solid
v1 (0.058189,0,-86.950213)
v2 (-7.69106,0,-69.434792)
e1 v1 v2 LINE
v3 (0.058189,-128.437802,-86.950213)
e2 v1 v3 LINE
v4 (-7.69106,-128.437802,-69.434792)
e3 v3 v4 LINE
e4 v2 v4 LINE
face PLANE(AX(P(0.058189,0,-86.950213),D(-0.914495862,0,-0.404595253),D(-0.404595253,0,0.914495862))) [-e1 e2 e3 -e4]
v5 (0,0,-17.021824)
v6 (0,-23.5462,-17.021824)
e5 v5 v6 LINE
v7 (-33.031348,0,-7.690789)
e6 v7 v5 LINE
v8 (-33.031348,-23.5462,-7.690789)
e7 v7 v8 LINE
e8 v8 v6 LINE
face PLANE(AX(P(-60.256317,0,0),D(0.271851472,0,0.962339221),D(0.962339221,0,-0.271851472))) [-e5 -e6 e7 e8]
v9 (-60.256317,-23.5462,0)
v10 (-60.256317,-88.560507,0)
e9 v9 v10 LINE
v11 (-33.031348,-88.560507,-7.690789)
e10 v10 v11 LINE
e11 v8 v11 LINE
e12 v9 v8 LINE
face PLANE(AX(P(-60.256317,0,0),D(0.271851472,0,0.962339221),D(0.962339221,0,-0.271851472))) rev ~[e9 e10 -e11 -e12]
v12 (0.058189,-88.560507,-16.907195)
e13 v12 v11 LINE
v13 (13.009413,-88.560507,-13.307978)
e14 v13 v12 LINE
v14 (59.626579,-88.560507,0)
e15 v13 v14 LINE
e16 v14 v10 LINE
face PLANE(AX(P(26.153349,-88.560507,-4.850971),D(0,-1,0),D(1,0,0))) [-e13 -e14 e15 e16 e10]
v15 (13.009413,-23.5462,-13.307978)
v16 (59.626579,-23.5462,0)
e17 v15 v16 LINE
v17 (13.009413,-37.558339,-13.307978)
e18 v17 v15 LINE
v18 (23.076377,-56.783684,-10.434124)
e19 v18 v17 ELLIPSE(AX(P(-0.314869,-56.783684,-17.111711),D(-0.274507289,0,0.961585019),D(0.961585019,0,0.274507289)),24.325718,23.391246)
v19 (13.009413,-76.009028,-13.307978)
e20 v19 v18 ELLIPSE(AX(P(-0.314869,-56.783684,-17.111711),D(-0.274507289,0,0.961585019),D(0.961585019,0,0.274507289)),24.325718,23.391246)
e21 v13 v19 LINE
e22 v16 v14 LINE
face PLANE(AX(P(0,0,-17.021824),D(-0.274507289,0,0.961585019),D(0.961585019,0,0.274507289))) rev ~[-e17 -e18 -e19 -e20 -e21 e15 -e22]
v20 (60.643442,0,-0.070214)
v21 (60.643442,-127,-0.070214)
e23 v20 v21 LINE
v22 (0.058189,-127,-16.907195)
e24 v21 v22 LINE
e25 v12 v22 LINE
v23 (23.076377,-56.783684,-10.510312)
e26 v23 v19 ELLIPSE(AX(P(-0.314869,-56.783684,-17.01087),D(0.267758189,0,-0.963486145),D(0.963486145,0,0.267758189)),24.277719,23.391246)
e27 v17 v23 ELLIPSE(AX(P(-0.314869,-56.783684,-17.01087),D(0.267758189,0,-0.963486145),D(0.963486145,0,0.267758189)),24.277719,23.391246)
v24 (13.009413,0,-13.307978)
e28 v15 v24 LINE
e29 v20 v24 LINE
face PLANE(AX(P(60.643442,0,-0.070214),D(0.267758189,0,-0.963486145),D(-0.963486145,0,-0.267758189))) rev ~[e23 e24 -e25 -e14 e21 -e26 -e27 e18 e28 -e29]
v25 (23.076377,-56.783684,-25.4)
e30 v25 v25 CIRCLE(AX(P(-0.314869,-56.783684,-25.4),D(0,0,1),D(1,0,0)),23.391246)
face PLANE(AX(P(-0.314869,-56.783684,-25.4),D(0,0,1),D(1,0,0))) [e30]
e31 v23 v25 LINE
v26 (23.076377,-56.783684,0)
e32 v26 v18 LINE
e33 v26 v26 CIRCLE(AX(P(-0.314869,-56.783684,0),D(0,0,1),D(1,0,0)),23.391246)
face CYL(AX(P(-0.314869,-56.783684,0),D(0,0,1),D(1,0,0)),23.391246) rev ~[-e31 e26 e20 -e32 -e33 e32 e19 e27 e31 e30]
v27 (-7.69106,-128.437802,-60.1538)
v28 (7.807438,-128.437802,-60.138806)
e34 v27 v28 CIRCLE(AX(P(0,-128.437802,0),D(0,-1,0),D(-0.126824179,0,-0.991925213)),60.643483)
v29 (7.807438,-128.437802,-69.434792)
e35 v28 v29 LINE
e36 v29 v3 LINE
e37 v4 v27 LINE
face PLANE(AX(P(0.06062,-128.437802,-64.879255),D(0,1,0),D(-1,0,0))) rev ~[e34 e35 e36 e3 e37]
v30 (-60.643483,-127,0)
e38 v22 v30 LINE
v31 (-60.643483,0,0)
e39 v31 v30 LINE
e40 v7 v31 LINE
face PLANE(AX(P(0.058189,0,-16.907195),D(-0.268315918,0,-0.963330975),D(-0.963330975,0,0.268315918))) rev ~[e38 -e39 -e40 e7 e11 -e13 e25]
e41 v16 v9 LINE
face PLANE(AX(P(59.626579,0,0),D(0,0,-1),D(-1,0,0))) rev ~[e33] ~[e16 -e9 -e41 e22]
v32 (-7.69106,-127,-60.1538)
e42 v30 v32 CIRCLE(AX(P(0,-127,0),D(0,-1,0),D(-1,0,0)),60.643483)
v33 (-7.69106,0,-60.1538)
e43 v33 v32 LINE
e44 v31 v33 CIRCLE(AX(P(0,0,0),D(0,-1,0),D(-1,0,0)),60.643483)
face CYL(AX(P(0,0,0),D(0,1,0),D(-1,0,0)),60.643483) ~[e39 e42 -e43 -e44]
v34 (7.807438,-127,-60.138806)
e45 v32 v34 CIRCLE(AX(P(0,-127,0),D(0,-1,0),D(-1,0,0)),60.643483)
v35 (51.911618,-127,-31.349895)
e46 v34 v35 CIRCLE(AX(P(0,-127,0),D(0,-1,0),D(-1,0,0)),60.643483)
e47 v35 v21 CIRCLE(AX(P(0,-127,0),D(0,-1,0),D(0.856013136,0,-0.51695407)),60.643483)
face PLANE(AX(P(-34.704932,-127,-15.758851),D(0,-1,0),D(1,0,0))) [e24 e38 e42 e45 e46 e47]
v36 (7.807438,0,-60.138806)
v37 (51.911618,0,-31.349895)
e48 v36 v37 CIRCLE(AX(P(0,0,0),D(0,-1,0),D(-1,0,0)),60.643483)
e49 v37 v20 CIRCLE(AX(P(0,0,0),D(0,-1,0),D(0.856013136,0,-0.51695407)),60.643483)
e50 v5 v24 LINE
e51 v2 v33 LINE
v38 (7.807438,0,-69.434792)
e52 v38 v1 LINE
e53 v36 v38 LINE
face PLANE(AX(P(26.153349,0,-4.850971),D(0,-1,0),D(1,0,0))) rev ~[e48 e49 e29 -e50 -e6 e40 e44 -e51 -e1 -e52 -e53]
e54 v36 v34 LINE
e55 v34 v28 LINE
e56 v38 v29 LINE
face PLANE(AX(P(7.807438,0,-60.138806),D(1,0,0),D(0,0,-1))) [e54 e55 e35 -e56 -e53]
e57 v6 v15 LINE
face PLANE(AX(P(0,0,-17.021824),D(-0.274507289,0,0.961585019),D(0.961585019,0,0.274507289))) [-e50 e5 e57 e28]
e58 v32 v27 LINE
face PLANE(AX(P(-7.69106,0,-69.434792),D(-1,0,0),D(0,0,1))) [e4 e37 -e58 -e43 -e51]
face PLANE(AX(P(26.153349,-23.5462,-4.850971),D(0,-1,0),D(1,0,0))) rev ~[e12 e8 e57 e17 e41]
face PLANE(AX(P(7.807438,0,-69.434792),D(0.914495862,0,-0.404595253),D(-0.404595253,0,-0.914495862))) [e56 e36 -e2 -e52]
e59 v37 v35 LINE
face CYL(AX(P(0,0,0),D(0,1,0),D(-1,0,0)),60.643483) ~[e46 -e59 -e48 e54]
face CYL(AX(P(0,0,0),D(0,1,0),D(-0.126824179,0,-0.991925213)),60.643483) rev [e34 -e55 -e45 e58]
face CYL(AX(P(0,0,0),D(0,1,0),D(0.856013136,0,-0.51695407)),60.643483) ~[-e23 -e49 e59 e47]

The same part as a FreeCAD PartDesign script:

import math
import FreeCAD as App
import Part
import Sketcher
from FreeCAD import Vector
Q = App.Units.Quantity


def add_polygon(sketch, points):
    """Adds a closed chain of lines whose ends are joined by coincident constraints."""
    first, n = sketch.GeometryCount, len(points)
    for a, b in zip(points, points[1:] + points[:1]):
        sketch.addGeometry(Part.LineSegment(App.Vector(*a, 0), App.Vector(*b, 0)), False)
    for i in range(n):
        sketch.addConstraint(Sketcher.Constraint("Coincident", first + i, 2, first + (i + 1) % n, 1))

doc = App.newDocument("Part")
body = doc.addObject("PartDesign::Body", "Body")

# Sketch on XZ plane
sketch1 = body.newObject("Sketcher::SketchObject", "Sketch")
sketch1.AttachmentSupport = (doc.getObject("XZ_Plane"), [""])
sketch1.MapMode = "FlatFace"
sketch1.addGeometry(Part.LineSegment(Vector(0, -17, 0), Vector(-61, 0, 0)), False)
sketch1.addGeometry(Part.ArcOfCircle(Part.Circle(Vector(0, 0, 0), Vector(0, 0, 1), 61), math.radians(180), math.radians(329)), False)
sketch1.addGeometry(Part.ArcOfCircle(Part.Circle(Vector(0, 0, 0), Vector(0, 0, 1), 61), math.radians(-31), math.radians(0)), False)
sketch1.addGeometry(Part.LineSegment(Vector(61, 0, 0), Vector(0, -17, 0)), False)
sketch1.addConstraint(Sketcher.Constraint("Coincident", 0, 2, 1, 1))
sketch1.addConstraint(Sketcher.Constraint("Tangent", 1, 2, 2, 1))
sketch1.addConstraint(Sketcher.Constraint("Coincident", 2, 2, 3, 1))
sketch1.addConstraint(Sketcher.Constraint("Coincident", 3, 2, 0, 1))
sketch1.addConstraint(Sketcher.Constraint("Coincident", 1, 3, -1, 1))
sketch1.addConstraint(Sketcher.Constraint("Equal", 1, 2))
sketch1.addConstraint(Sketcher.Constraint("PointOnObject", 0, 2, -1))
sketch1.addConstraint(Sketcher.Constraint("Radius", 1, 60.643483))
sketch1.addConstraint(Sketcher.Constraint("DistanceX", 0, 2, 1, 2, 112.555101))
sketch1.addConstraint(Sketcher.Constraint("DistanceY", 1, 2, 3, 2, 14.4427))
sketch1.addConstraint(Sketcher.Constraint("Distance", 0, 63.012271))
sketch1.addConstraint(Sketcher.Constraint("Distance", 3, 62.881292))
pad1 = body.newObject("PartDesign::Pad", "Pad")
pad1.Profile = sketch1
pad1.Length = Q("5 in")

# Sketch on XZ plane
sketch2 = body.newObject("Sketcher::SketchObject", "Sketch001")
sketch2.AttachmentSupport = (doc.getObject("XZ_Plane"), [""])
sketch2.MapMode = "FlatFace"
sketch2.addGeometry(Part.LineSegment(Vector(8, -60, 0), Vector(8, -69, 0)), False)
sketch2.addGeometry(Part.LineSegment(Vector(8, -69, 0), Vector(0, -87, 0)), False)
sketch2.addGeometry(Part.LineSegment(Vector(0, -87, 0), Vector(-8, -69, 0)), False)
sketch2.addGeometry(Part.LineSegment(Vector(-8, -69, 0), Vector(-8, -60, 0)), False)
sketch2.addGeometry(Part.ArcOfCircle(Part.Circle(Vector(0, 0, 0), Vector(0, 0, 1), 61), math.radians(-97.29), math.radians(-82.6)), False)
sketch2.addConstraint(Sketcher.Constraint("Coincident", 0, 2, 1, 1))
sketch2.addConstraint(Sketcher.Constraint("Coincident", 1, 2, 2, 1))
sketch2.addConstraint(Sketcher.Constraint("Coincident", 2, 2, 3, 1))
sketch2.addConstraint(Sketcher.Constraint("Coincident", 3, 2, 4, 1))
sketch2.addConstraint(Sketcher.Constraint("Coincident", 4, 2, 0, 1))
sketch2.addConstraint(Sketcher.Constraint("Vertical", 0))
sketch2.addConstraint(Sketcher.Constraint("Vertical", 3))
sketch2.addConstraint(Sketcher.Constraint("Coincident", 4, 3, -1, 1))
sketch2.addConstraint(Sketcher.Constraint("Horizontal", 0, 2, 2, 2))
sketch2.addConstraint(Sketcher.Constraint("Equal", 1, 2))
sketch2.addConstraint(Sketcher.Constraint("Radius", 4, 60.643483))
sketch2.addConstraint(Sketcher.Constraint("DistanceY", 3, 2, -1, 1, 60.1538))
sketch2.addConstraint(Sketcher.Constraint("DistanceX", 2, 2, 0, 2, 15.498498))
sketch2.addConstraint(Sketcher.Constraint("Distance", 1, 19.153089))
sketch2.addConstraint(Sketcher.Constraint("DistanceY", 0, 2, 0, 1, 9.295986))
pad2 = body.newObject("PartDesign::Pad", "Pad001")
pad2.Profile = sketch2
pad2.Length = 128.437802

# Sketch on XZ plane
sketch3 = body.newObject("Sketcher::SketchObject", "Sketch002")
sketch3.AttachmentSupport = (doc.getObject("XZ_Plane"), [""])
sketch3.MapMode = "FlatFace"
add_polygon(sketch3, [(60, 0), (-60, 0), (0, -17)])  # lines 0-2
sketch3.addConstraint(Sketcher.Constraint("Horizontal", 0))
sketch3.addConstraint(Sketcher.Constraint("PointOnObject", 0, 2, -1))
sketch3.addConstraint(Sketcher.Constraint("PointOnObject", 1, 2, -2))
sketch3.addConstraint(Sketcher.Constraint("Distance", 2, 62.00864))
sketch3.addConstraint(Sketcher.Constraint("DistanceX", 0, 2, 0, 1, 119.882897))
sketch3.addConstraint(Sketcher.Constraint("DistanceX", -1, 1, 2, 2, 59.626579))
pad3 = body.newObject("PartDesign::Pad", "Pad002")
pad3.Profile = sketch3
pad3.Length = 88.560507

# Sketch on XZ plane
sketch4 = body.newObject("Sketcher::SketchObject", "Sketch003")
sketch4.AttachmentSupport = (doc.getObject("XZ_Plane"), [""])
sketch4.MapMode = "FlatFace"
add_polygon(sketch4, [(60, 0), (-60, 0), (0, -17)])  # lines 0-2
sketch4.addConstraint(Sketcher.Constraint("Horizontal", 0))
sketch4.addConstraint(Sketcher.Constraint("PointOnObject", 0, 2, -1))
sketch4.addConstraint(Sketcher.Constraint("PointOnObject", 1, 2, -2))
sketch4.addConstraint(Sketcher.Constraint("Distance", 2, 62.00864))
sketch4.addConstraint(Sketcher.Constraint("DistanceX", 0, 2, 0, 1, 119.882897))
sketch4.addConstraint(Sketcher.Constraint("DistanceX", -1, 1, 2, 2, 59.626579))
pocket1 = body.newObject("PartDesign::Pocket", "Pocket")
pocket1.Profile = sketch4
pocket1.Length = 23.5462
pocket1.Reversed = True

# Sketch on XY plane
sketch5 = body.newObject("Sketcher::SketchObject", "Sketch004")
sketch5.AttachmentSupport = (doc.getObject("XY_Plane"), [""])
sketch5.MapMode = "FlatFace"
sketch5.addGeometry(Part.Circle(Vector(0, -57, 0), Vector(0, 0, 1), 23), False)
sketch5.addConstraint(Sketcher.Constraint("Diameter", 0, 46.782492))
sketch5.addConstraint(Sketcher.Constraint("DistanceX", 0, 3, -1, 1, 0.314869))
sketch5.addConstraint(Sketcher.Constraint("DistanceY", 0, 3, -1, 1, 56.783684))
pocket2 = body.newObject("PartDesign::Pocket", "Pocket001")
pocket2.Profile = sketch5
pocket2.Length = Q("1 in")

doc.recompute()
